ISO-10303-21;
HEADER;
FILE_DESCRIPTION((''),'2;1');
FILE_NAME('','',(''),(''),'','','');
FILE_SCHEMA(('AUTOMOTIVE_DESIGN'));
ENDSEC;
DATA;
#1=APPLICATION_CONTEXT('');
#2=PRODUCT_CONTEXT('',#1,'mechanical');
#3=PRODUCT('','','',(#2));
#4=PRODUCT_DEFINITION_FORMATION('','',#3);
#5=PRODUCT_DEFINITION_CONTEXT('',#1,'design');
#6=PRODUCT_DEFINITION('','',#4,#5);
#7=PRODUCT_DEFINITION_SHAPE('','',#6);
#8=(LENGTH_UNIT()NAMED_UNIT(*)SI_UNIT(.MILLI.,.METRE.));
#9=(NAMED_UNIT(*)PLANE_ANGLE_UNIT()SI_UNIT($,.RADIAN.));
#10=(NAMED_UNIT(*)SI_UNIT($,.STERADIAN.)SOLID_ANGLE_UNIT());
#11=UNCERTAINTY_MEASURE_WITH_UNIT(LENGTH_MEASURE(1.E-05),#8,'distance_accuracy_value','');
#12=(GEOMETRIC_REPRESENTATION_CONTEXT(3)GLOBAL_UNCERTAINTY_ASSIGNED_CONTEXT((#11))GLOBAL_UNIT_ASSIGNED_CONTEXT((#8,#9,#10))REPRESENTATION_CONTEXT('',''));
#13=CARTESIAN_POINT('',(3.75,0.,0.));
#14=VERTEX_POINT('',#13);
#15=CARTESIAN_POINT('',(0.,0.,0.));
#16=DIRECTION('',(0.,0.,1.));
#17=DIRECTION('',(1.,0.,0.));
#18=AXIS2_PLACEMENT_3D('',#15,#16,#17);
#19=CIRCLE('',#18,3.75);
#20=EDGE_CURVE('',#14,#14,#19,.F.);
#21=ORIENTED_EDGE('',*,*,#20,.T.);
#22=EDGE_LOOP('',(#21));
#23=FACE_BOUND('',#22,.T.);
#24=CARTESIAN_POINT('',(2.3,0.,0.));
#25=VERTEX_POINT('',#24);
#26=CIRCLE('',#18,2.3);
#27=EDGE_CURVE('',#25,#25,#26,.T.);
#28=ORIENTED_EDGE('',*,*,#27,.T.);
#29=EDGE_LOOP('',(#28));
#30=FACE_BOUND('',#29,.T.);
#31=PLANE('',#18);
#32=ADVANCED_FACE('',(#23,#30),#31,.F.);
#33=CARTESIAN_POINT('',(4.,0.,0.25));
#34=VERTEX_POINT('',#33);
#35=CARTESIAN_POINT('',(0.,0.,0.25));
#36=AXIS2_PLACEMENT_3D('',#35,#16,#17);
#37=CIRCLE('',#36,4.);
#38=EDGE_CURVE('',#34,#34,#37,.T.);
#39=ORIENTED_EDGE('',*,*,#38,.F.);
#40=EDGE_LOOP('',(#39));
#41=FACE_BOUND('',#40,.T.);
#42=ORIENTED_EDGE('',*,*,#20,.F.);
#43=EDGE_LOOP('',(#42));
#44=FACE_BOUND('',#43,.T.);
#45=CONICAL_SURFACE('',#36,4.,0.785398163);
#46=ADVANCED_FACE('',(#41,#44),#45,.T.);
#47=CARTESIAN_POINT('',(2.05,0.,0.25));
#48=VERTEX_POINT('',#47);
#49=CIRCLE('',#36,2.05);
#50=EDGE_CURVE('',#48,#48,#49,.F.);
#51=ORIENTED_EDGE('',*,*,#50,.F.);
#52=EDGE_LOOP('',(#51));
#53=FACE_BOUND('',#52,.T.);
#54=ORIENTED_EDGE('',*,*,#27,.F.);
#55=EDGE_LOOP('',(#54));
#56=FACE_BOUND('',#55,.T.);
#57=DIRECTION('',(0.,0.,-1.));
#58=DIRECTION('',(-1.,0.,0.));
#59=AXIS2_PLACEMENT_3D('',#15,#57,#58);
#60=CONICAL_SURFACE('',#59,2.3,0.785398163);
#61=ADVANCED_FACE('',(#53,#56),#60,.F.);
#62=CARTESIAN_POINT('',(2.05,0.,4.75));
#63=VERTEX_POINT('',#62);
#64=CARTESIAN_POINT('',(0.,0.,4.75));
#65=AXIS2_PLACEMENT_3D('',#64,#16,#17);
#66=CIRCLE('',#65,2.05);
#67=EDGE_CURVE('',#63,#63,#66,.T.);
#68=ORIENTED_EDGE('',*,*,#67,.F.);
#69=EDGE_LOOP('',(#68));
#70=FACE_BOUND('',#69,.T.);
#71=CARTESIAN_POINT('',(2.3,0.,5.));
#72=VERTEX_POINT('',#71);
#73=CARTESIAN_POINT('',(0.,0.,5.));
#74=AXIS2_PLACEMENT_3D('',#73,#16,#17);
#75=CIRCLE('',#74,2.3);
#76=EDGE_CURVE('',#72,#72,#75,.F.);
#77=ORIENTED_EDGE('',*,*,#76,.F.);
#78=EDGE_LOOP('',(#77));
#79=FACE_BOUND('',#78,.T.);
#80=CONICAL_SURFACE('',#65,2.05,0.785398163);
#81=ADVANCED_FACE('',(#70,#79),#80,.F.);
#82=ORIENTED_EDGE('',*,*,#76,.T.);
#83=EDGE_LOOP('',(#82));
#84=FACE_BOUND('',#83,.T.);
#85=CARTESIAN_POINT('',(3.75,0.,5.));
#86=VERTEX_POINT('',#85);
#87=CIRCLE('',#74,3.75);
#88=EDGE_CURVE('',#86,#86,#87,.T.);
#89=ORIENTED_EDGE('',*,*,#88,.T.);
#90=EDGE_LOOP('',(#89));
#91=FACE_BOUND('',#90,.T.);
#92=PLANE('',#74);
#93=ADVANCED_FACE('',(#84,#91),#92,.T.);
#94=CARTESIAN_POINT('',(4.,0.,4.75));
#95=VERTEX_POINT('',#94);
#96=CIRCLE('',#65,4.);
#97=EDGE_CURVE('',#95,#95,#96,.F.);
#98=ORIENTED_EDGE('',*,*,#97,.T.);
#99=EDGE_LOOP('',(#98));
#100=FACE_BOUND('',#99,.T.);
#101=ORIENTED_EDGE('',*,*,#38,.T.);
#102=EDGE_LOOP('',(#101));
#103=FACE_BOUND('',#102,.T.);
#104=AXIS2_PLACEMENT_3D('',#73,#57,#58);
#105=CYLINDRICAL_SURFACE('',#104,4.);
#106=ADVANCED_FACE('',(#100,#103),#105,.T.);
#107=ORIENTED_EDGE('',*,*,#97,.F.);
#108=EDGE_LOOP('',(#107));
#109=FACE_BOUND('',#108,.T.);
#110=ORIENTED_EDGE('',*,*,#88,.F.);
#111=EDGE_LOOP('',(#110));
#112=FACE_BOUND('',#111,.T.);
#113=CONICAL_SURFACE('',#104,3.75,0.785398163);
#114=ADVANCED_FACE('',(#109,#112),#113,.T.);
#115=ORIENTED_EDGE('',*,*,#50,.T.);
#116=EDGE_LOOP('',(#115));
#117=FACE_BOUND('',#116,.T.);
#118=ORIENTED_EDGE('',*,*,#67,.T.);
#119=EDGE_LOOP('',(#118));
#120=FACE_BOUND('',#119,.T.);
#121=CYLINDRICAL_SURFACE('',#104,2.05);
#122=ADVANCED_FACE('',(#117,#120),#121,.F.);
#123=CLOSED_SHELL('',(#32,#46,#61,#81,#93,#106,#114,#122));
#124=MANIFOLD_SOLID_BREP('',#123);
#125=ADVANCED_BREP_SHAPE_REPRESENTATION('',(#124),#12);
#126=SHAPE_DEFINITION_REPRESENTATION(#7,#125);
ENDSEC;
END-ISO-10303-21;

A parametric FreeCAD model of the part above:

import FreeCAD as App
import Part
import Sketcher
Q = App.Units.Quantity


def edges_at(feature, points):
    """Names of the edges that pass closest to the given points."""
    edges = feature.Shape.Edges
    near = lambda p: min(range(len(edges)), key=lambda i: edges[i].distToShape(Part.Vertex(*p))[0])
    return sorted({f"Edge{near(p) + 1}" for p in points})

doc = App.newDocument("Part")
body = doc.addObject("PartDesign::Body", "Body")

# Sketch on XY plane
sketch1 = body.newObject("Sketcher::SketchObject", "Sketch")
sketch1.AttachmentSupport = (doc.getObject("XY_Plane"), [""])
sketch1.MapMode = "FlatFace"
sketch1.addGeometry(Part.Circle(App.Vector(0, 0, 0), App.Vector(0, 0, 1), 4), False)
sketch1.addGeometry(Part.Circle(App.Vector(0, 0, 0), App.Vector(0, 0, 1), 2.05), False)
sketch1.addConstraint(Sketcher.Constraint("Coincident", 0, 3, -1, 1))
sketch1.addConstraint(Sketcher.Constraint("Coincident", 1, 3, -1, 1))
sketch1.addConstraint(Sketcher.Constraint("Diameter", 0, Q("8 mm")))
sketch1.addConstraint(Sketcher.Constraint("Diameter", 1, Q("4.1 mm")))
pad1 = body.newObject("PartDesign::Pad", "Pad")
pad1.Profile = sketch1
pad1.Length = 5
doc.recompute()

chamfer = body.newObject("PartDesign::Chamfer", "Chamfer")
chamfer.Base = (pad1, edges_at(pad1, [
    (-4, 0, 0),
    (-4, 0, 5),
    (-2.05, 0, 0),
    (-2.05, 0, 5),
]))
chamfer.Size = 0.25

doc.recompute()
